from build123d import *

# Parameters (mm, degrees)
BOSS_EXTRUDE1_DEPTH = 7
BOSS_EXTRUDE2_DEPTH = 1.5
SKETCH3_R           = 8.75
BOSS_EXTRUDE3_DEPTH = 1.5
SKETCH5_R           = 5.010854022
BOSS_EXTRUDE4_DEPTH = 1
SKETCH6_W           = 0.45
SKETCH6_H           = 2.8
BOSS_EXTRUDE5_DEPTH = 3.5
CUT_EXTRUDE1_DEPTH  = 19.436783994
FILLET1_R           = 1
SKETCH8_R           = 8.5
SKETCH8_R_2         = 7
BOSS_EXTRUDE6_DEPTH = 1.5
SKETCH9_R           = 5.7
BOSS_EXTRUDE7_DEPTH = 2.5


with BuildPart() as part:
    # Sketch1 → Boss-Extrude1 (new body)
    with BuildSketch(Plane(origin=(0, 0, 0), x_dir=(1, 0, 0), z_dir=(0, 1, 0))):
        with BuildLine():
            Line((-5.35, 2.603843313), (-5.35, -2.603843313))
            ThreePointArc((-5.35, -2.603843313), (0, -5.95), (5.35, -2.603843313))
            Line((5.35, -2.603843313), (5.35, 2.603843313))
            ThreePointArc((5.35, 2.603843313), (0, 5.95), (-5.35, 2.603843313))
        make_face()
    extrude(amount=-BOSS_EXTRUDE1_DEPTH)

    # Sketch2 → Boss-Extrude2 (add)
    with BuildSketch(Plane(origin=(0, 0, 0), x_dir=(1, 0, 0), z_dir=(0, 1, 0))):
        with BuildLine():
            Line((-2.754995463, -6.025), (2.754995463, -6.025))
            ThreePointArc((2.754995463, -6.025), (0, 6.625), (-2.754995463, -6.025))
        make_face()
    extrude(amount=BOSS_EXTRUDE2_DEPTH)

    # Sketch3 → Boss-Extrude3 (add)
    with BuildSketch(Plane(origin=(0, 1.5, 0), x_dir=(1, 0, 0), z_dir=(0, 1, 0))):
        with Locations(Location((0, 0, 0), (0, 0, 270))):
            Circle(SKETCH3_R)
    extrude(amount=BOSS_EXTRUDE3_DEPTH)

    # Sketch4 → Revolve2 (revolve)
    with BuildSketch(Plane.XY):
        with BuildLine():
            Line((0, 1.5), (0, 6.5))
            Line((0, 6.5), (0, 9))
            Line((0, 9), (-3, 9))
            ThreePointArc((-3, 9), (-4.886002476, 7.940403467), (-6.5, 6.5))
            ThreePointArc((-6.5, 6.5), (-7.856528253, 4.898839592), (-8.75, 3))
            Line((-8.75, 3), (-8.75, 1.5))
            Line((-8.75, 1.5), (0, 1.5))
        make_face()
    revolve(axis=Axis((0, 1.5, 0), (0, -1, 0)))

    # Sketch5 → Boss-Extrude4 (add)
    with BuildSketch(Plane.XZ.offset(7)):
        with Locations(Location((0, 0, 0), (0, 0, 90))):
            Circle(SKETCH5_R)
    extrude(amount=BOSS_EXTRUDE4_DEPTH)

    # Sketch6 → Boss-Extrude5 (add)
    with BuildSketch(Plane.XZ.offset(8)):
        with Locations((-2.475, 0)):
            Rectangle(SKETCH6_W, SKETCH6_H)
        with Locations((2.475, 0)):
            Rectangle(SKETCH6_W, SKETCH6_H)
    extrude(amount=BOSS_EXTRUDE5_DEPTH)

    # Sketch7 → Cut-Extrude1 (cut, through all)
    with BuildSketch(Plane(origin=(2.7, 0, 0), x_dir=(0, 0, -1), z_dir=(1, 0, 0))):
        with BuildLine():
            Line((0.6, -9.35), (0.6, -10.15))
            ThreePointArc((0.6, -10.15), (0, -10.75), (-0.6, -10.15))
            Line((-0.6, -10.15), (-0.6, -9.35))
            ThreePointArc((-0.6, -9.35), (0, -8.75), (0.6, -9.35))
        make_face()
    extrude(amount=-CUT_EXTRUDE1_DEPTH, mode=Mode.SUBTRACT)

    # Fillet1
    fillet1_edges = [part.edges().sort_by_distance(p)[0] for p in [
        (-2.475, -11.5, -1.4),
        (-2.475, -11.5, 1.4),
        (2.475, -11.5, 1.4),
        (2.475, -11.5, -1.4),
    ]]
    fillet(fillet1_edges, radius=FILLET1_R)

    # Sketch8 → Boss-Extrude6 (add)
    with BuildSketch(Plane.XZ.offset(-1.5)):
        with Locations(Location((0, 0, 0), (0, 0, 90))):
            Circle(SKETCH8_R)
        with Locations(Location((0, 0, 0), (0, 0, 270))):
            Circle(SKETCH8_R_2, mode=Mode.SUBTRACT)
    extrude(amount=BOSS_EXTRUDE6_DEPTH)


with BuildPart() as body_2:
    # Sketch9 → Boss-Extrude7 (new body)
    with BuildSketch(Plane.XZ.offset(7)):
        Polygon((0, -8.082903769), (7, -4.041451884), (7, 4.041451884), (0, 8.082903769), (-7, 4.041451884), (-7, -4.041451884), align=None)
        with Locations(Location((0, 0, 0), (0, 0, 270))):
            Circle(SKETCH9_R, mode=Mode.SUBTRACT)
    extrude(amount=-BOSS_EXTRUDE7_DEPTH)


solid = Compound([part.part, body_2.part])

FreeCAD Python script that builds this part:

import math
import FreeCAD as App
import Part
import Sketcher

V = App.Vector
Q = App.Units.Quantity


def edges_at(feature, points):
    """Names of the edges that pass closest to the given points."""
    edges = feature.Shape.Edges
    near = lambda p: min(range(len(edges)), key=lambda i: edges[i].distToShape(Part.Vertex(*p))[0])
    return sorted({f"Edge{near(p) + 1}" for p in points})


def add_polygon(sketch, points):
    """Adds a closed chain of lines whose ends are joined by coincident constraints."""
    first, n = sketch.GeometryCount, len(points)
    for a, b in zip(points, points[1:] + points[:1]):
        sketch.addGeometry(Part.LineSegment(App.Vector(*a, 0), App.Vector(*b, 0)), False)
    for i in range(n):
        sketch.addConstraint(Sketcher.Constraint("Coincident", first + i, 2, first + (i + 1) % n, 1))

doc = App.newDocument("Part")
params = doc.addObject("Spreadsheet::Sheet", "Params")
for row, (alias, value) in enumerate([
    ("sketch1_radius", "5.95 mm"),
    ("pad1_length", "7 mm"),
    ("pad2_length", "1.5 mm"),
    ("sketch3_diameter", "17.5 mm"),
    ("pad3_length", "1.5 mm"),
    ("sketch4_radius", "10 mm"),
    ("sketch4_radius2", "8 mm"),
    ("sketch4_width", "3 mm"),
    ("sketch4_height", "7.5 mm"),
    ("sketch4_height2", "1.5 mm"),
    ("revolution_angle", "360 deg"),
    ("pad4_length", "1 mm"),
    ("sketch6_height", "2.8 mm"),
    ("sketch6_width", "0.45 mm"),
    ("pad5_length", "3.5 mm"),
    ("sketch7_radius", "0.6 mm"),
    ("sketch7_width", "0.8 mm"),
    ("fillet_radius", "1 mm"),
    ("sketch8_diameter", "17 mm"),
    ("sketch8_diameter2", "14 mm"),
    ("pad6_length", "1.5 mm"),
    ("sketch9_diameter", "11.4 mm"),
    ("pad7_length", "2.5 mm"),
], start=1):
    params.set(f"A{row}", alias)
    params.set(f"B{row}", "=" + value)
    params.setAlias(f"B{row}", alias)

body = doc.addObject("PartDesign::Body", "Body")

# Sketch on XZ plane
sketch1 = body.newObject("Sketcher::SketchObject", "Sketch")
sketch1.AttachmentSupport = (doc.getObject("XZ_Plane"), [""])
sketch1.MapMode = "FlatFace"
sketch1.addGeometry(Part.LineSegment(V(-5.35, -2.603843, 0), V(-5.35, 2.603843, 0)), False)
sketch1.addGeometry(Part.ArcOfCircle(Part.Circle(V(0, 0, 0), V(0, 0, 1), 5.95), math.radians(25.952172), math.radians(154.047828)), False)
sketch1.addGeometry(Part.LineSegment(V(5.35, 2.603843, 0), V(5.35, -2.603843, 0)), False)
sketch1.addGeometry(Part.ArcOfCircle(Part.Circle(V(0, 0, 0), V(0, 0, 1), 5.95), math.radians(-154.047828), math.radians(-25.952172)), False)
sketch1.addConstraint(Sketcher.Constraint("Coincident", 0, 2, 1, 2))
sketch1.addConstraint(Sketcher.Constraint("Coincident", 1, 1, 2, 1))
sketch1.addConstraint(Sketcher.Constraint("Coincident", 2, 2, 3, 2))
sketch1.addConstraint(Sketcher.Constraint("Coincident", 3, 1, 0, 1))
sketch1.addConstraint(Sketcher.Constraint("Vertical", 0))
sketch1.addConstraint(Sketcher.Constraint("Vertical", 2))
sketch1.addConstraint(Sketcher.Constraint("Coincident", 1, 3, -1, 1))
sketch1.addConstraint(Sketcher.Constraint("Coincident", 3, 3, -1, 1))
sketch1.addConstraint(Sketcher.Constraint("Equal", 1, 3))
sketch1.addConstraint(Sketcher.Constraint("Horizontal", 0, 2, 1, 1))
sketch1.addConstraint(Sketcher.Constraint("Radius", 1, Q("5.95 mm")))
sketch1.addConstraint(Sketcher.Constraint("DistanceX", 0, 2, 1, 1, Q("10.7 mm")))
sketch1.setExpression("Constraints[10]", "Params.sketch1_radius")
pad1 = body.newObject("PartDesign::Pad", "Pad")
pad1.Profile = sketch1
pad1.setExpression("Length", "Params.pad1_length")

# Sketch on XZ plane
sketch2 = body.newObject("Sketcher::SketchObject", "Sketch001")
sketch2.AttachmentSupport = (doc.getObject("XZ_Plane"), [""])
sketch2.MapMode = "FlatFace"
sketch2.addGeometry(Part.LineSegment(V(-2.754995, 6.025, 0), V(2.754995, 6.025, 0)), False)
sketch2.addGeometry(Part.ArcOfCircle(Part.Circle(V(0, 0, 0), V(0, 0, 1), 6.625), math.radians(114.572754), math.radians(425.427246)), False)
sketch2.addConstraint(Sketcher.Constraint("Coincident", 0, 1, 1, 1))
sketch2.addConstraint(Sketcher.Constraint("Coincident", 1, 2, 0, 2))
sketch2.addConstraint(Sketcher.Constraint("Horizontal", 0))
sketch2.addConstraint(Sketcher.Constraint("Coincident", 1, 3, -1, 1))
sketch2.addConstraint(Sketcher.Constraint("Radius", 1, Q("6.625 mm")))
sketch2.addConstraint(Sketcher.Constraint("DistanceY", -1, 1, 0, 1, Q("6.025 mm")))
pad2 = body.newObject("PartDesign::Pad", "Pad001")
pad2.Profile = sketch2
pad2.setExpression("Length", "Params.pad2_length")
pad2.Reversed = True

# Sketch on XZ plane
sketch3 = body.newObject("Sketcher::SketchObject", "Sketch002")
sketch3.AttachmentSupport = (doc.getObject("XZ_Plane"), [""])
sketch3.MapMode = "FlatFace"
sketch3.AttachmentOffset = App.Placement(V(0, 0, -1.5), App.Rotation())
sketch3.addGeometry(Part.Circle(V(0, 0, 0), V(0, 0, 1), 8.75), False)
sketch3.addConstraint(Sketcher.Constraint("Coincident", 0, 3, -1, 1))
sketch3.addConstraint(Sketcher.Constraint("Diameter", 0, Q("17.5 mm")))
sketch3.setExpression("Constraints[1]", "Params.sketch3_diameter")
pad3 = body.newObject("PartDesign::Pad", "Pad002")
pad3.Profile = sketch3
pad3.setExpression("Length", "Params.pad3_length")
pad3.Reversed = True

# Sketch on XY plane
sketch4 = body.newObject("Sketcher::SketchObject", "Sketch003")
sketch4.AttachmentSupport = (doc.getObject("XY_Plane"), [""])
sketch4.MapMode = "FlatFace"
sketch4.addGeometry(Part.LineSegment(V(0, 1.5, 0), V(0, 9, 0)), False)
sketch4.addGeometry(Part.LineSegment(V(0, 9, 0), V(-3, 9, 0)), False)
sketch4.addGeometry(Part.ArcOfCircle(Part.Circle(V(0.926379, -0.196931, 0), V(0, 0, 1), 10), math.radians(113.11874), math.radians(137.956616)), False)
sketch4.addGeometry(Part.ArcOfCircle(Part.Circle(V(-1.1271, 0.572779, 0), V(0, 0, 1), 8), math.radians(132.191636), math.radians(162.337911)), False)
sketch4.addGeometry(Part.LineSegment(V(-8.75, 3, 0), V(-8.75, 1.5, 0)), False)
sketch4.addGeometry(Part.LineSegment(V(-8.75, 1.5, 0), V(0, 1.5, 0)), False)
sketch4.addConstraint(Sketcher.Constraint("Coincident", 0, 2, 1, 1))
sketch4.addConstraint(Sketcher.Constraint("Coincident", 1, 2, 2, 1))
sketch4.addConstraint(Sketcher.Constraint("Coincident", 2, 2, 3, 1))
sketch4.addConstraint(Sketcher.Constraint("Coincident", 3, 2, 4, 1))
sketch4.addConstraint(Sketcher.Constraint("Coincident", 4, 2, 5, 1))
sketch4.addConstraint(Sketcher.Constraint("Coincident", 5, 2, 0, 1))
sketch4.addConstraint(Sketcher.Constraint("Vertical", 0))
sketch4.addConstraint(Sketcher.Constraint("Horizontal", 1))
sketch4.addConstraint(Sketcher.Constraint("Vertical", 4))
sketch4.addConstraint(Sketcher.Constraint("Horizontal", 5))
sketch4.addConstraint(Sketcher.Constraint("PointOnObject", 0, 2, -2))
sketch4.addConstraint(Sketcher.Constraint("Radius", 2, Q("10 mm")))
sketch4.addConstraint(Sketcher.Constraint("Radius", 3, Q("8 mm")))
sketch4.addConstraint(Sketcher.Constraint("DistanceX", 1, 2, 1, 1, Q("3 mm")))
sketch4.addConstraint(Sketcher.Constraint("DistanceY", 0, 1, 0, 2, Q("7.5 mm")))
sketch4.addConstraint(Sketcher.Constraint("DistanceY", 4, 2, 4, 1, Q("1.5 mm")))
sketch4.addConstraint(Sketcher.Constraint("DistanceY", -1, 1, 0, 2, Q("9 mm")))
sketch4.addConstraint(Sketcher.Constraint("DistanceY", 4, 2, 2, 2, Q("5 mm")))
sketch4.addConstraint(Sketcher.Constraint("DistanceX", 5, 1, 5, 2, Q("8.75 mm")))
sketch4.addConstraint(Sketcher.Constraint("DistanceX", 2, 2, -1, 1, Q("6.5 mm")))
sketch4.setExpression("Constraints[11]", "Params.sketch4_radius")
sketch4.setExpression("Constraints[12]", "Params.sketch4_radius2")
sketch4.setExpression("Constraints[13]", "Params.sketch4_width")
sketch4.setExpression("Constraints[14]", "Params.sketch4_height")
sketch4.setExpression("Constraints[15]", "Params.sketch4_height2")
revolution = body.newObject("PartDesign::Revolution", "Revolution")
revolution.Profile = sketch4
revolution.ReferenceAxis = (sketch4, ["V_Axis"])
revolution.setExpression("Angle", "Params.revolution_angle")

# Sketch on XZ plane
sketch5 = body.newObject("Sketcher::SketchObject", "Sketch004")
sketch5.AttachmentSupport = (doc.getObject("XZ_Plane"), [""])
sketch5.MapMode = "FlatFace"
sketch5.AttachmentOffset = App.Placement(V(0, 0, 7), App.Rotation())
sketch5.addGeometry(Part.Circle(V(0, 0, 0), V(0, 0, 1), 5.010854), False)
sketch5.addConstraint(Sketcher.Constraint("Coincident", 0, 3, -1, 1))
sketch5.addConstraint(Sketcher.Constraint("Diameter", 0, Q("10.021708 mm")))
pad4 = body.newObject("PartDesign::Pad", "Pad003")
pad4.Profile = sketch5
pad4.setExpression("Length", "Params.pad4_length")

# Sketch on XZ plane
sketch6 = body.newObject("Sketcher::SketchObject", "Sketch005")
sketch6.AttachmentSupport = (doc.getObject("XZ_Plane"), [""])
sketch6.MapMode = "FlatFace"
sketch6.AttachmentOffset = App.Placement(V(0, 0, 8), App.Rotation())
add_polygon(sketch6, [(-2.7, 1.4), (-2.7, -1.4), (-2.25, -1.4), (-2.25, 1.4)])  # lines 0-3
add_polygon(sketch6, [(2.25, 1.4), (2.25, -1.4), (2.7, -1.4), (2.7, 1.4)])  # lines 4-7
sketch6.addConstraint(Sketcher.Constraint("Vertical", 0))
sketch6.addConstraint(Sketcher.Constraint("Horizontal", 1))
sketch6.addConstraint(Sketcher.Constraint("Vertical", 2))
sketch6.addConstraint(Sketcher.Constraint("Horizontal", 3))
sketch6.addConstraint(Sketcher.Constraint("Vertical", 4))
sketch6.addConstraint(Sketcher.Constraint("Horizontal", 5))
sketch6.addConstraint(Sketcher.Constraint("Vertical", 6))
sketch6.addConstraint(Sketcher.Constraint("Horizontal", 7))
sketch6.addConstraint(Sketcher.Constraint("Symmetric", 2, 2, 4, 2, -1, 1))
sketch6.addConstraint(Sketcher.Constraint("Symmetric", 0, 2, 6, 2, -1, 1))
sketch6.addConstraint(Sketcher.Constraint("Horizontal", 1, 2, 4, 2))
sketch6.addConstraint(Sketcher.Constraint("DistanceY", 0, 2, 0, 1, Q("2.8 mm")))
sketch6.addConstraint(Sketcher.Constraint("DistanceX", 1, 1, 1, 2, Q("0.45 mm")))
sketch6.addConstraint(Sketcher.Constraint("DistanceX", 0, 2, -1, 1, Q("2.7 mm")))
sketch6.setExpression("Constraints[19]", "Params.sketch6_height")
sketch6.setExpression("Constraints[20]", "Params.sketch6_width")
pad5 = body.newObject("PartDesign::Pad", "Pad004")
pad5.Profile = sketch6
pad5.setExpression("Length", "Params.pad5_length")

# Sketch on YZ plane
sketch7 = body.newObject("Sketcher::SketchObject", "Sketch006")
sketch7.AttachmentSupport = (doc.getObject("YZ_Plane"), [""])
sketch7.MapMode = "FlatFace"
sketch7.AttachmentOffset = App.Placement(V(0, 0, 2.7), App.Rotation())
sketch7.addGeometry(Part.LineSegment(V(-10.15, -0.6, 0), V(-9.35, -0.6, 0)), False)
sketch7.addGeometry(Part.ArcOfCircle(Part.Circle(V(-9.35, 0, 0), V(0, 0, 1), 0.6), math.radians(-90), math.radians(90)), False)
sketch7.addGeometry(Part.LineSegment(V(-9.35, 0.6, 0), V(-10.15, 0.6, 0)), False)
sketch7.addGeometry(Part.ArcOfCircle(Part.Circle(V(-10.15, 0, 0), V(0, 0, 1), 0.6), math.radians(90), math.radians(270)), False)
sketch7.addConstraint(Sketcher.Constraint("Tangent", 0, 2, 1, 1))
sketch7.addConstraint(Sketcher.Constraint("Tangent", 1, 2, 2, 1))
sketch7.addConstraint(Sketcher.Constraint("Tangent", 2, 2, 3, 1))
sketch7.addConstraint(Sketcher.Constraint("Tangent", 3, 2, 0, 1))
sketch7.addConstraint(Sketcher.Constraint("Horizontal", 0))
sketch7.addConstraint(Sketcher.Constraint("Horizontal", 2))
sketch7.addConstraint(Sketcher.Constraint("PointOnObject", 1, 3, -1))
sketch7.addConstraint(Sketcher.Constraint("Radius", 1, Q("0.6 mm")))
sketch7.addConstraint(Sketcher.Constraint("DistanceX", 0, 1, 0, 2, Q("0.8 mm")))
sketch7.addConstraint(Sketcher.Constraint("DistanceX", 1, 3, -1, 1, Q("9.35 mm")))
sketch7.setExpression("Constraints[7]", "Params.sketch7_radius")
sketch7.setExpression("Constraints[8]", "Params.sketch7_width")
pocket1 = body.newObject("PartDesign::Pocket", "Pocket")
pocket1.Profile = sketch7
pocket1.Type = "ThroughAll"
doc.recompute()

fillet = body.newObject("PartDesign::Fillet", "Fillet")
fillet.Base = (pocket1, edges_at(pocket1, [
    (-2.475, -11.5, -1.4),
    (-2.475, -11.5, 1.4),
    (2.475, -11.5, 1.4),
    (2.475, -11.5, -1.4),
]))
fillet.setExpression("Radius", "Params.fillet_radius")

# Sketch on XZ plane
sketch8 = body.newObject("Sketcher::SketchObject", "Sketch007")
sketch8.AttachmentSupport = (doc.getObject("XZ_Plane"), [""])
sketch8.MapMode = "FlatFace"
sketch8.AttachmentOffset = App.Placement(V(0, 0, -1.5), App.Rotation())
sketch8.addGeometry(Part.Circle(V(0, 0, 0), V(0, 0, 1), 8.5), False)
sketch8.addGeometry(Part.Circle(V(0, 0, 0), V(0, 0, 1), 7), False)
sketch8.addConstraint(Sketcher.Constraint("Coincident", 0, 3, -1, 1))
sketch8.addConstraint(Sketcher.Constraint("Coincident", 1, 3, -1, 1))
sketch8.addConstraint(Sketcher.Constraint("Diameter", 0, Q("17 mm")))
sketch8.addConstraint(Sketcher.Constraint("Diameter", 1, Q("14 mm")))
sketch8.setExpression("Constraints[2]", "Params.sketch8_diameter")
sketch8.setExpression("Constraints[3]", "Params.sketch8_diameter2")
pad6 = body.newObject("PartDesign::Pad", "Pad005")
pad6.Profile = sketch8
pad6.setExpression("Length", "Params.pad6_length")
body2 = doc.addObject("PartDesign::Body", "Body001")

# Sketch on XZ plane
sketch9 = body2.newObject("Sketcher::SketchObject", "Sketch008")
sketch9.AttachmentSupport = (doc.getObject("XZ_Plane001"), [""])
sketch9.MapMode = "FlatFace"
sketch9.AttachmentOffset = App.Placement(V(0, 0, 7), App.Rotation())
add_polygon(sketch9, [(0, -8.082904), (7, -4.041452), (7, 4.041452), (0, 8.082904), (-7, 4.041452), (-7, -4.041452)])  # lines 0-5
sketch9.addGeometry(Part.Circle(V(0, 0, 0), V(0, 0, 1), 5.7), False)  # 6
sketch9.addConstraint(Sketcher.Constraint("Vertical", 1))
sketch9.addConstraint(Sketcher.Constraint("Vertical", 4))
sketch9.addConstraint(Sketcher.Constraint("Coincident", 6, 3, -1, 1))
sketch9.addConstraint(Sketcher.Constraint("Symmetric", 0, 2, 3, 2, -1, 1))
sketch9.addConstraint(Sketcher.Constraint("Symmetric", 2, 2, 5, 2, -1, 1))
sketch9.addConstraint(Sketcher.Constraint("PointOnObject", 2, 2, -2))
sketch9.addConstraint(Sketcher.Constraint("Parallel", 2, 5))
sketch9.addConstraint(Sketcher.Constraint("Horizontal", 1, 2, 3, 2))
sketch9.addConstraint(Sketcher.Constraint("Diameter", 6, Q("11.4 mm")))
sketch9.addConstraint(Sketcher.Constraint("Angle", 0, Q("30 deg")))
sketch9.addConstraint(Sketcher.Constraint("DistanceX", -1, 1, 0, 2, Q("7 mm")))
sketch9.addConstraint(Sketcher.Constraint("DistanceY", 1, 1, 1, 2, Q("8.082904 mm")))
sketch9.setExpression("Constraints[14]", "Params.sketch9_diameter")
pad7 = body2.newObject("PartDesign::Pad", "Pad006")
pad7.Profile = sketch9
pad7.setExpression("Length", "Params.pad7_length")
pad7.Reversed = True

doc.recompute()
